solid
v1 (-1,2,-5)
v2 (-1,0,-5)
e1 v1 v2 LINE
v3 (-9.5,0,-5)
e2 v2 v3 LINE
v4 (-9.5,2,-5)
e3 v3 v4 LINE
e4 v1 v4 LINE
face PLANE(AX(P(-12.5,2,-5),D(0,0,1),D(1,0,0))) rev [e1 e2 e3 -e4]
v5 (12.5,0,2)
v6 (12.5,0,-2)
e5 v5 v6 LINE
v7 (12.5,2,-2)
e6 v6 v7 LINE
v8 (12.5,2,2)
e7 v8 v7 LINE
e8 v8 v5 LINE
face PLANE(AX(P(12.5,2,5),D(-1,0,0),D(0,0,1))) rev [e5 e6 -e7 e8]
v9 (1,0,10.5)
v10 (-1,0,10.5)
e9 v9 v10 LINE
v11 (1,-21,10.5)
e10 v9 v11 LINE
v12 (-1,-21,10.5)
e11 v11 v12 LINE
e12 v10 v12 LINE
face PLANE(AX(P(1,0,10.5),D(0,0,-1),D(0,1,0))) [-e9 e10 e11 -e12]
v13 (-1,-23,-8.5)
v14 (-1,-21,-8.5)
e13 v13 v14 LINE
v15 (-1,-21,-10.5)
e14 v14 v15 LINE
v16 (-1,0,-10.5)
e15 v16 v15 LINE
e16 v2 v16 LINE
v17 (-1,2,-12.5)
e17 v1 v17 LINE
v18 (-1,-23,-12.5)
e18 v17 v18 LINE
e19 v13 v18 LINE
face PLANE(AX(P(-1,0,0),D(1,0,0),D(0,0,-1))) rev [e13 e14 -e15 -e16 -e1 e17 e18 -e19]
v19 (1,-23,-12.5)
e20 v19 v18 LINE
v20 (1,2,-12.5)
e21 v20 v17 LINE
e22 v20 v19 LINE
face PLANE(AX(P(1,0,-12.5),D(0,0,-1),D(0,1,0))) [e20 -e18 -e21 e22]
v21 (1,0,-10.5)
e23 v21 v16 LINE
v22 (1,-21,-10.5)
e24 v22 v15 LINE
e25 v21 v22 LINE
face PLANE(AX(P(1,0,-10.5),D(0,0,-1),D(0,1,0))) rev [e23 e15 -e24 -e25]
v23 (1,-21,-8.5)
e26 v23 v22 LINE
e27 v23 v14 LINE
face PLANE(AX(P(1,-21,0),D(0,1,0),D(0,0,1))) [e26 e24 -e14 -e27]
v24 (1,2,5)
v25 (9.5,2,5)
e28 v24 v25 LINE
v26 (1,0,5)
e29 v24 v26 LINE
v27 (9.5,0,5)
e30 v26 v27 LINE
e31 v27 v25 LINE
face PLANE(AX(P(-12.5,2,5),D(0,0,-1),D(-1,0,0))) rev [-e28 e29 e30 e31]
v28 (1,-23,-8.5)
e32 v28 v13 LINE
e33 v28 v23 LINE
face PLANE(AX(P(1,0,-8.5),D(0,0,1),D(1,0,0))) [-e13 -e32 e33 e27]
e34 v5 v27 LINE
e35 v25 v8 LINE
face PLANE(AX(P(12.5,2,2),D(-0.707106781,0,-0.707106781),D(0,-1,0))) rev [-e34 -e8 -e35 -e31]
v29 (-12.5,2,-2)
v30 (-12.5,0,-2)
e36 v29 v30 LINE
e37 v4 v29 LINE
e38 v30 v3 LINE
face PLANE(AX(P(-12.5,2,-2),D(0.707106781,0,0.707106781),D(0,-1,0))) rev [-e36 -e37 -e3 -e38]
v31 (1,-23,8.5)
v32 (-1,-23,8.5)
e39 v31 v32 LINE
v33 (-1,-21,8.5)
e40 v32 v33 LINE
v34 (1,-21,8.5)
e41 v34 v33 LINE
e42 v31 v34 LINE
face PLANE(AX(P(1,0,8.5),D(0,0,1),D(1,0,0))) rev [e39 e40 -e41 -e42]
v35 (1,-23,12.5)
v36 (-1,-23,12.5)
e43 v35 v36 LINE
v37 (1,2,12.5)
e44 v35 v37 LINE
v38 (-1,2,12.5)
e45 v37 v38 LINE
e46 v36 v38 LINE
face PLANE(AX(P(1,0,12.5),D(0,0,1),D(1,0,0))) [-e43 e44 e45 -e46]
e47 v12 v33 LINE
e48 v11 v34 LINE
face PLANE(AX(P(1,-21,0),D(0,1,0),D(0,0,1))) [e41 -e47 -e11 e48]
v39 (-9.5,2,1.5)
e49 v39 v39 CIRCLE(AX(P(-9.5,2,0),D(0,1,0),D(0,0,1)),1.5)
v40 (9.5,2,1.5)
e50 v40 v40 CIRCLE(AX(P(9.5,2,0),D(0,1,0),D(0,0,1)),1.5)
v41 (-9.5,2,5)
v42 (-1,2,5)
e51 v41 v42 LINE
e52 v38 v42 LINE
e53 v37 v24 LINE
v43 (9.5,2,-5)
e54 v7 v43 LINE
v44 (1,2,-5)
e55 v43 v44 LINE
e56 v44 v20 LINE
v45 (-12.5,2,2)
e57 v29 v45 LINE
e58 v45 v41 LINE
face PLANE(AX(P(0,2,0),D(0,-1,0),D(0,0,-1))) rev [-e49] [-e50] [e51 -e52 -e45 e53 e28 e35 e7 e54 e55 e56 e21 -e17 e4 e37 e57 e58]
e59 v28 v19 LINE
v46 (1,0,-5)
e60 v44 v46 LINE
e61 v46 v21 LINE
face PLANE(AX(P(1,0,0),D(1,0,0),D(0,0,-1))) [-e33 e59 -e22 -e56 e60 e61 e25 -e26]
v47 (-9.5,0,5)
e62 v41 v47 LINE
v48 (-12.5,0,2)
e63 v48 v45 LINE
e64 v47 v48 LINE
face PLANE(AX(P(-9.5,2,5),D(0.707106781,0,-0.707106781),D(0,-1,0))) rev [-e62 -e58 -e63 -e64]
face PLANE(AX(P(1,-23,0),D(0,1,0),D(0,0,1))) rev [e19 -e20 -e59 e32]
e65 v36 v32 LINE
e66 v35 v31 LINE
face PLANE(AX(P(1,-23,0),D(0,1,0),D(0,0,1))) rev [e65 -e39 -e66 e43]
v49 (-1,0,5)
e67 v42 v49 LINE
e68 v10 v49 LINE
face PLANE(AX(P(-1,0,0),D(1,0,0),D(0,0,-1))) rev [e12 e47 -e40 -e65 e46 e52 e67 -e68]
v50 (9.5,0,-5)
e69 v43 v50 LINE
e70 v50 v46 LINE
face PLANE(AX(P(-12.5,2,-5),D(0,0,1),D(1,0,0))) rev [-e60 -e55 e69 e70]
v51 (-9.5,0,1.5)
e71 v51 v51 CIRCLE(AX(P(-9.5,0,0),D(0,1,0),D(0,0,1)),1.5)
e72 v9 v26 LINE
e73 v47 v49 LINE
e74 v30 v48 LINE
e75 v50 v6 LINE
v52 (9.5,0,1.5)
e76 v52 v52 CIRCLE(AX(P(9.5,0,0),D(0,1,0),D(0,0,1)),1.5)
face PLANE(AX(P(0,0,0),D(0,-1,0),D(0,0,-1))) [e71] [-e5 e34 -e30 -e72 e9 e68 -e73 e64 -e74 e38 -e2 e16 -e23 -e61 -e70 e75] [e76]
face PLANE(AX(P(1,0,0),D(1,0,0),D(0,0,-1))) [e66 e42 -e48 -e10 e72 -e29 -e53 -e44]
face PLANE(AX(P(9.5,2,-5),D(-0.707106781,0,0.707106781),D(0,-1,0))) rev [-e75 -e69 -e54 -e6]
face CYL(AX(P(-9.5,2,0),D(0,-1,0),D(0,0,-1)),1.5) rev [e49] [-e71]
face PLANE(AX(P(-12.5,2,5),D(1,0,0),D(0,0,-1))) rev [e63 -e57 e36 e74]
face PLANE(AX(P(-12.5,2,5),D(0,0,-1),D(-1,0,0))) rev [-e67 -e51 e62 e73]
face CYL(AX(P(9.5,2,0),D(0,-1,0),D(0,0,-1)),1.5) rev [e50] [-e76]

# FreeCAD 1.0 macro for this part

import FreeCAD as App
import Part
import Sketcher
Q = App.Units.Quantity


def edges_at(feature, points):
    """Names of the edges that pass closest to the given points."""
    edges = feature.Shape.Edges
    near = lambda p: min(range(len(edges)), key=lambda i: edges[i].distToShape(Part.Vertex(*p))[0])
    return sorted({f"Edge{near(p) + 1}" for p in points})


def add_polygon(sketch, points):
    """Adds a closed chain of lines whose ends are joined by coincident constraints."""
    first, n = sketch.GeometryCount, len(points)
    for a, b in zip(points, points[1:] + points[:1]):
        sketch.addGeometry(Part.LineSegment(App.Vector(*a, 0), App.Vector(*b, 0)), False)
    for i in range(n):
        sketch.addConstraint(Sketcher.Constraint("Coincident", first + i, 2, first + (i + 1) % n, 1))

doc = App.newDocument("Part")
body = doc.addObject("PartDesign::Body", "Body")

sketch1 = doc.addObject("Sketcher::SketchObject", "Sketch")
body.addObject(sketch1)
sketch1.AttachmentSupport = (doc.XZ_Plane, [""])
sketch1.MapMode = "FlatFace"
add_polygon(sketch1, [(-12.5, -5), (-12.5, 5), (12.5, 5), (12.5, -5)])
sketch1.addGeometry(Part.Circle(App.Vector(-9.5, 0, 0), App.Vector(0, 0, 1), 1.5), False)
sketch1.addGeometry(Part.Circle(App.Vector(9.5, 0, 0), App.Vector(0, 0, 1), 1.5), False)
sketch1.addConstraint(Sketcher.Constraint("Vertical", 0))
sketch1.addConstraint(Sketcher.Constraint("Horizontal", 1))
sketch1.addConstraint(Sketcher.Constraint("Vertical", 2))
sketch1.addConstraint(Sketcher.Constraint("Horizontal", 3))
sketch1.addConstraint(Sketcher.Constraint("Equal", 4, 5))
sketch1.addConstraint(Sketcher.Constraint("Symmetric", 4, 3, 5, 3, -1, 1))
sketch1.addConstraint(Sketcher.Constraint("Symmetric", 0, 2, 2, 2, -1, 1))
sketch1.addConstraint(Sketcher.Constraint("PointOnObject", 4, 3, -1))
sketch1.addConstraint(Sketcher.Constraint("Diameter", 4, Q("3 mm")))
sketch1.addConstraint(Sketcher.Constraint("DistanceX", 1, 1, 1, 2, Q("25 mm")))
sketch1.addConstraint(Sketcher.Constraint("DistanceY", 0, 1, 0, 2, Q("10 mm")))
sketch1.addConstraint(Sketcher.Constraint("DistanceX", 4, 3, 5, 3, Q("19 mm")))
pad1 = doc.addObject("PartDesign::Pad", "Pad")
body.addObject(pad1)
pad1.Profile = sketch1
pad1.Length = 2
pad1.Reversed = True

sketch2 = doc.addObject("Sketcher::SketchObject", "Sketch001")
body.addObject(sketch2)
sketch2.AttachmentSupport = (doc.YZ_Plane, [""])
sketch2.MapMode = "FlatFace"
add_polygon(sketch2, [(0, 10.5), (0, 5), (2, 5), (2, 12.5), (-23, 12.5), (-23, 8.5), (-21, 8.5), (-21, 10.5)])
add_polygon(sketch2, [(2, -5), (0, -5), (0, -10.5), (-21, -10.5), (-21, -8.5), (-23, -8.5), (-23, -12.5), (2, -12.5)])
sketch2.addConstraint(Sketcher.Constraint("Vertical", 0))
sketch2.addConstraint(Sketcher.Constraint("Horizontal", 1))
sketch2.addConstraint(Sketcher.Constraint("Vertical", 2))
sketch2.addConstraint(Sketcher.Constraint("Horizontal", 3))
sketch2.addConstraint(Sketcher.Constraint("Vertical", 4))
sketch2.addConstraint(Sketcher.Constraint("Horizontal", 5))
sketch2.addConstraint(Sketcher.Constraint("Vertical", 6))
sketch2.addConstraint(Sketcher.Constraint("Horizontal", 7))
sketch2.addConstraint(Sketcher.Constraint("Horizontal", 8))
sketch2.addConstraint(Sketcher.Constraint("Vertical", 9))
sketch2.addConstraint(Sketcher.Constraint("Horizontal", 10))
sketch2.addConstraint(Sketcher.Constraint("Vertical", 11))
sketch2.addConstraint(Sketcher.Constraint("Horizontal", 12))
sketch2.addConstraint(Sketcher.Constraint("Vertical", 13))
sketch2.addConstraint(Sketcher.Constraint("Horizontal", 14))
sketch2.addConstraint(Sketcher.Constraint("Vertical", 15))
sketch2.addConstraint(Sketcher.Constraint("Symmetric", 0, 2, 8, 2, -1, 1))
sketch2.addConstraint(Sketcher.Constraint("Symmetric", 7, 2, 9, 2, -1))
sketch2.addConstraint(Sketcher.Constraint("Symmetric", 5, 2, 11, 2, -1))
sketch2.addConstraint(Sketcher.Constraint("Symmetric", 3, 2, 13, 2, -1))
sketch2.addConstraint(Sketcher.Constraint("Vertical", 2, 2, 14, 2))
sketch2.addConstraint(Sketcher.Constraint("Equal", 1, 5))
sketch2.addConstraint(Sketcher.Constraint("Equal", 12, 6))
sketch2.addConstraint(Sketcher.Constraint("DistanceX", 1, 1, 1, 2, Q("2 mm")))
sketch2.addConstraint(Sketcher.Constraint("DistanceX", 3, 2, 3, 1, Q("25 mm")))
sketch2.addConstraint(Sketcher.Constraint("DistanceY", 4, 2, 4, 1, Q("4 mm")))
sketch2.addConstraint(Sketcher.Constraint("DistanceY", 0, 2, 0, 1, Q("5.5 mm")))
sketch2.addConstraint(Sketcher.Constraint("DistanceY", -1, 1, 0, 2, Q("5 mm")))
pad2 = doc.addObject("PartDesign::Pad", "Pad001")
body.addObject(pad2)
pad2.Profile = sketch2
pad2.Length = 2
pad2.Midplane = True
doc.recompute()

chamfer = doc.addObject("PartDesign::Chamfer", "Chamfer")
body.addObject(chamfer)
chamfer.Base = (pad2, edges_at(pad2, [
    (12.5, 1, -5),
    (12.5, 1, 5),
    (-12.5, 1, -5),
    (-12.5, 1, 5),
]))
chamfer.Size = 3

doc.recompute()
